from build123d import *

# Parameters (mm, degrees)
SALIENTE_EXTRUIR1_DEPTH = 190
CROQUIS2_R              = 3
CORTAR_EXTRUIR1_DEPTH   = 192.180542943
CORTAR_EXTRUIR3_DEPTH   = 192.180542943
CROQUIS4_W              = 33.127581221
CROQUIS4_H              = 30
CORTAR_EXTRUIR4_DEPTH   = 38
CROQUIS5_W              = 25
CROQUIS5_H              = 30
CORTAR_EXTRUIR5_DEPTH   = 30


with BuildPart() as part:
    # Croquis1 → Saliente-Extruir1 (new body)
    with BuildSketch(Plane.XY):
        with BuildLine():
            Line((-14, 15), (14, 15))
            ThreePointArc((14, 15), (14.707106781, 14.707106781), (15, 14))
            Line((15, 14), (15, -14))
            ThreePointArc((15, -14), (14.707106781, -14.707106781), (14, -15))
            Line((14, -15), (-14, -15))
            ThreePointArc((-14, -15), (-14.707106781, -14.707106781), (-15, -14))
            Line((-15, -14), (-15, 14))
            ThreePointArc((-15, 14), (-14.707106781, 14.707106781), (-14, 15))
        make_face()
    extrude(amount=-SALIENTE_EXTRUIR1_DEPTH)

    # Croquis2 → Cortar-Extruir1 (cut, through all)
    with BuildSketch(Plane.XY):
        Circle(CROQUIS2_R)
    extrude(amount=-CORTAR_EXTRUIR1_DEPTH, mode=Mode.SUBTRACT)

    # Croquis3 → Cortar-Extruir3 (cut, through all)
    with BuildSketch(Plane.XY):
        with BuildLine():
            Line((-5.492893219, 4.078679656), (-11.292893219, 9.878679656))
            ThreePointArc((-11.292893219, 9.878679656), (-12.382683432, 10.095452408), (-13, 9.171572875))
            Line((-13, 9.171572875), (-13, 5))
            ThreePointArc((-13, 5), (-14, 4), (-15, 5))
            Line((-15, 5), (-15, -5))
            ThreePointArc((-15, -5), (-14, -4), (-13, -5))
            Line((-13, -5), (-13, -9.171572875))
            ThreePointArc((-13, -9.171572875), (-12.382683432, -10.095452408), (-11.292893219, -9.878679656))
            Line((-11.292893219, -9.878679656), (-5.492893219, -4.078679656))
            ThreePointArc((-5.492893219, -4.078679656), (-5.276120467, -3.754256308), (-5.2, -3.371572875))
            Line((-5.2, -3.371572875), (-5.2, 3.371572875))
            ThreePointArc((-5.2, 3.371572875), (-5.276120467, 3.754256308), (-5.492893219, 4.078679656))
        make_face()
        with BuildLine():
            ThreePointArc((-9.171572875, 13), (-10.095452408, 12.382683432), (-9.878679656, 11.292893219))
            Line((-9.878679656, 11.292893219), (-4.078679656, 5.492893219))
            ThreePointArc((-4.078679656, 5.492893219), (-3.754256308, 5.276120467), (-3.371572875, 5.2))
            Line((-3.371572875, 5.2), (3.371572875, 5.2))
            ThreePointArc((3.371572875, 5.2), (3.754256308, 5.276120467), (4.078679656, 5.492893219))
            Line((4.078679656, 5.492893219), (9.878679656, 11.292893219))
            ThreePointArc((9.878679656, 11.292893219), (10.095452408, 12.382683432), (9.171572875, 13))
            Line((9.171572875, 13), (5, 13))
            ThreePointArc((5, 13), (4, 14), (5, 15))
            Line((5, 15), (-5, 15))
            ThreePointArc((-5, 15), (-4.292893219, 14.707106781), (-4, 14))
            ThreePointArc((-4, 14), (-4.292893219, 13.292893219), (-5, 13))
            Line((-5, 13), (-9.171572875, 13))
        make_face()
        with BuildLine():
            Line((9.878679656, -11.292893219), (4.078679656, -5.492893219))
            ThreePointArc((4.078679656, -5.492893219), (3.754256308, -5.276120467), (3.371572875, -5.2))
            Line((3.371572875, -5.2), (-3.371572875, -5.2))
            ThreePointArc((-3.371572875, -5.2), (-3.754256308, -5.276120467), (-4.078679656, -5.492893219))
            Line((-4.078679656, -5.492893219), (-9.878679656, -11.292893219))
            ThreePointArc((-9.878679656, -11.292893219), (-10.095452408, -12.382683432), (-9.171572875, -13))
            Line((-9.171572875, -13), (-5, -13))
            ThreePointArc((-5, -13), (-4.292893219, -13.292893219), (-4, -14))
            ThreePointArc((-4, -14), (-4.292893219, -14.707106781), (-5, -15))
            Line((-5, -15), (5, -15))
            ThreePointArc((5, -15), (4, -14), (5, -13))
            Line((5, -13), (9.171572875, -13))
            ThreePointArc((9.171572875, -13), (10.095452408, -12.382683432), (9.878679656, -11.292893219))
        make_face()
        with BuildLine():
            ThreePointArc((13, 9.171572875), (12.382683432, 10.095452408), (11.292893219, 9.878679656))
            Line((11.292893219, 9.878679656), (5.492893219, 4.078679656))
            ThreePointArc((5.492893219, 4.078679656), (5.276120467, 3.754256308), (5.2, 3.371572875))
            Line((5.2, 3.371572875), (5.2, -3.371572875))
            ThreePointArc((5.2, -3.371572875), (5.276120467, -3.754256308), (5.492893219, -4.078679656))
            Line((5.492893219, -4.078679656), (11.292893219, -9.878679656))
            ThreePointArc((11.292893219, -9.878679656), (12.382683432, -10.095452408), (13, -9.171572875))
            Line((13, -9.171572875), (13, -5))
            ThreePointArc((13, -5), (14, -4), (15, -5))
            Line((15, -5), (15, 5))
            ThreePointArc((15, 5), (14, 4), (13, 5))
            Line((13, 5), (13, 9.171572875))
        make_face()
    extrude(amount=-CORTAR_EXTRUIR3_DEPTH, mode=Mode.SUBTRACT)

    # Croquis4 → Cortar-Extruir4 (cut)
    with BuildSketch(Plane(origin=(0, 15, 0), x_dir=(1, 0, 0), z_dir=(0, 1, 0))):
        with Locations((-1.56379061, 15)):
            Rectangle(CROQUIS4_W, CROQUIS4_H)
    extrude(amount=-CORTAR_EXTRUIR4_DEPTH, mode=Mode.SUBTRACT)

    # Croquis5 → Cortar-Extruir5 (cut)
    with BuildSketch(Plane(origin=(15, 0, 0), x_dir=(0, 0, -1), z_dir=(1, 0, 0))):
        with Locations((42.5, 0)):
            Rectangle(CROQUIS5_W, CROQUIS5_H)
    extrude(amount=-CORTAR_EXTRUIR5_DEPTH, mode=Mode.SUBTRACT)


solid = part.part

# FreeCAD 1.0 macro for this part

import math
import FreeCAD as App
import Part
import Sketcher
Q = App.Units.Quantity

doc = App.newDocument("Part")
body = doc.addObject("PartDesign::Body", "Body")

# Sketch on XY plane
sketch1 = body.newObject("Sketcher::SketchObject", "Sketch")
sketch1.AttachmentSupport = (doc.getObject("XY_Plane"), [""])
sketch1.MapMode = "FlatFace"
sketch1.addGeometry(Part.LineSegment(App.Vector(14, 15, 0), App.Vector(-14, 15, 0)), False)
sketch1.addGeometry(Part.ArcOfCircle(Part.Circle(App.Vector(-14, 14, 0), App.Vector(0, 0, 1), 1), math.radians(90), math.radians(180)), False)
sketch1.addGeometry(Part.LineSegment(App.Vector(-15, 14, 0), App.Vector(-15, -14, 0)), False)
sketch1.addGeometry(Part.ArcOfCircle(Part.Circle(App.Vector(-14, -14, 0), App.Vector(0, 0, 1), 1), math.radians(-180), math.radians(-90)), False)
sketch1.addGeometry(Part.LineSegment(App.Vector(-14, -15, 0), App.Vector(14, -15, 0)), False)
sketch1.addGeometry(Part.ArcOfCircle(Part.Circle(App.Vector(14, -14, 0), App.Vector(0, 0, 1), 1), math.radians(-90), math.radians(0)), False)
sketch1.addGeometry(Part.LineSegment(App.Vector(15, -14, 0), App.Vector(15, 14, 0)), False)
sketch1.addGeometry(Part.ArcOfCircle(Part.Circle(App.Vector(14, 14, 0), App.Vector(0, 0, 1), 1), math.radians(0), math.radians(90)), False)
sketch1.addConstraint(Sketcher.Constraint("Tangent", 0, 2, 1, 1))
sketch1.addConstraint(Sketcher.Constraint("Tangent", 1, 2, 2, 1))
sketch1.addConstraint(Sketcher.Constraint("Tangent", 2, 2, 3, 1))
sketch1.addConstraint(Sketcher.Constraint("Tangent", 3, 2, 4, 1))
sketch1.addConstraint(Sketcher.Constraint("Tangent", 4, 2, 5, 1))
sketch1.addConstraint(Sketcher.Constraint("Tangent", 5, 2, 6, 1))
sketch1.addConstraint(Sketcher.Constraint("Tangent", 6, 2, 7, 1))
sketch1.addConstraint(Sketcher.Constraint("Tangent", 7, 2, 0, 1))
sketch1.addConstraint(Sketcher.Constraint("Horizontal", 0))
sketch1.addConstraint(Sketcher.Constraint("Vertical", 2))
sketch1.addConstraint(Sketcher.Constraint("Horizontal", 4))
sketch1.addConstraint(Sketcher.Constraint("Vertical", 6))
sketch1.addConstraint(Sketcher.Constraint("Equal", 1, 3))
sketch1.addConstraint(Sketcher.Constraint("Equal", 3, 5))
sketch1.addConstraint(Sketcher.Constraint("Equal", 5, 7))
sketch1.addConstraint(Sketcher.Constraint("Symmetric", 1, 3, 5, 3, -1, 1))
sketch1.addConstraint(Sketcher.Constraint("Equal", 4, 2))
sketch1.addConstraint(Sketcher.Constraint("Radius", 1, Q("1 mm")))
sketch1.addConstraint(Sketcher.Constraint("DistanceX", 0, 2, 0, 1, Q("28 mm")))
pad1 = body.newObject("PartDesign::Pad", "Pad")
pad1.Profile = sketch1
pad1.Length = 190
pad1.Reversed = True

# Sketch on XY plane
sketch2 = body.newObject("Sketcher::SketchObject", "Sketch001")
sketch2.AttachmentSupport = (doc.getObject("XY_Plane"), [""])
sketch2.MapMode = "FlatFace"
sketch2.addGeometry(Part.Circle(App.Vector(0, 0, 0), App.Vector(0, 0, 1), 3), False)
sketch2.addConstraint(Sketcher.Constraint("Coincident", 0, 3, -1, 1))
sketch2.addConstraint(Sketcher.Constraint("Diameter", 0, Q("6 mm")))
pocket1 = body.newObject("PartDesign::Pocket", "Pocket")
pocket1.Profile = sketch2
pocket1.Type = "ThroughAll"

# Sketch on XY plane
sketch3 = body.newObject("Sketcher::SketchObject", "Sketch002")
sketch3.AttachmentSupport = (doc.getObject("XY_Plane"), [""])
sketch3.MapMode = "FlatFace"
sketch3.addGeometry(Part.LineSegment(App.Vector(-5.5, 4.1, 0), App.Vector(-11.3, 9.9, 0)), False)
sketch3.addGeometry(Part.ArcOfCircle(Part.Circle(App.Vector(-12, 9.2, 0), App.Vector(0, 0, 1), 1), math.radians(45), math.radians(180)), False)
sketch3.addGeometry(Part.LineSegment(App.Vector(-13, 9.2, 0), App.Vector(-13, 5, 0)), False)
sketch3.addGeometry(Part.ArcOfCircle(Part.Circle(App.Vector(-14, 5, 0), App.Vector(0, 0, 1), 1), math.radians(180), math.radians(360)), False)
sketch3.addGeometry(Part.LineSegment(App.Vector(-15, 5, 0), App.Vector(-15, -5, 0)), False)
sketch3.addGeometry(Part.ArcOfCircle(Part.Circle(App.Vector(-14, -5, 0), App.Vector(0, 0, 1), 1), math.radians(0), math.radians(180)), False)
sketch3.addGeometry(Part.LineSegment(App.Vector(-13, -5, 0), App.Vector(-13, -9.2, 0)), False)
sketch3.addGeometry(Part.ArcOfCircle(Part.Circle(App.Vector(-12, -9.2, 0), App.Vector(0, 0, 1), 1), math.radians(180), math.radians(315)), False)
sketch3.addGeometry(Part.LineSegment(App.Vector(-11.3, -9.9, 0), App.Vector(-5.5, -4.1, 0)), False)
sketch3.addGeometry(Part.ArcOfCircle(Part.Circle(App.Vector(-6.2, -3.4, 0), App.Vector(0, 0, 1), 1), math.radians(-45), math.radians(0)), False)
sketch3.addGeometry(Part.LineSegment(App.Vector(-5.2, -3.4, 0), App.Vector(-5.2, 3.4, 0)), False)
sketch3.addGeometry(Part.ArcOfCircle(Part.Circle(App.Vector(-6.2, 3.4, 0), App.Vector(0, 0, 1), 1), math.radians(0), math.radians(45)), False)
sketch3.addGeometry(Part.ArcOfCircle(Part.Circle(App.Vector(-9.2, 12, 0), App.Vector(0, 0, 1), 1), math.radians(90), math.radians(225)), False)
sketch3.addGeometry(Part.LineSegment(App.Vector(-9.9, 11.3, 0), App.Vector(-4.1, 5.5, 0)), False)
sketch3.addGeometry(Part.ArcOfCircle(Part.Circle(App.Vector(-3.4, 6.2, 0), App.Vector(0, 0, 1), 1), math.radians(-135), math.radians(-90)), False)
sketch3.addGeometry(Part.LineSegment(App.Vector(-3.4, 5.2, 0), App.Vector(3.4, 5.2, 0)), False)
sketch3.addGeometry(Part.ArcOfCircle(Part.Circle(App.Vector(3.4, 6.2, 0), App.Vector(0, 0, 1), 1), math.radians(-90), math.radians(-45)), False)
sketch3.addGeometry(Part.LineSegment(App.Vector(4.1, 5.5, 0), App.Vector(9.9, 11.3, 0)), False)
sketch3.addGeometry(Part.ArcOfCircle(Part.Circle(App.Vector(9.2, 12, 0), App.Vector(0, 0, 1), 1), math.radians(-45), math.radians(90)), False)
sketch3.addGeometry(Part.LineSegment(App.Vector(9.2, 13, 0), App.Vector(5, 13, 0)), False)
sketch3.addGeometry(Part.ArcOfCircle(Part.Circle(App.Vector(5, 14, 0), App.Vector(0, 0, 1), 1), math.radians(90), math.radians(270)), False)
sketch3.addGeometry(Part.LineSegment(App.Vector(5, 15, 0), App.Vector(-5, 15, 0)), False)
sketch3.addGeometry(Part.ArcOfCircle(Part.Circle(App.Vector(-5, 14, 0), App.Vector(0, 0, 1), 1), math.radians(0), math.radians(90)), False)
sketch3.addGeometry(Part.ArcOfCircle(Part.Circle(App.Vector(-5, 14, 0), App.Vector(0, 0, 1), 1), math.radians(-90), math.radians(0)), False)
sketch3.addGeometry(Part.LineSegment(App.Vector(-5, 13, 0), App.Vector(-9.2, 13, 0)), False)
sketch3.addGeometry(Part.LineSegment(App.Vector(9.9, -11.3, 0), App.Vector(4.1, -5.5, 0)), False)
sketch3.addGeometry(Part.ArcOfCircle(Part.Circle(App.Vector(3.4, -6.2, 0), App.Vector(0, 0, 1), 1), math.radians(45), math.radians(90)), False)
sketch3.addGeometry(Part.LineSegment(App.Vector(3.4, -5.2, 0), App.Vector(-3.4, -5.2, 0)), False)
sketch3.addGeometry(Part.ArcOfCircle(Part.Circle(App.Vector(-3.4, -6.2, 0), App.Vector(0, 0, 1), 1), math.radians(90), math.radians(135)), False)
sketch3.addGeometry(Part.LineSegment(App.Vector(-4.1, -5.5, 0), App.Vector(-9.9, -11.3, 0)), False)
sketch3.addGeometry(Part.ArcOfCircle(Part.Circle(App.Vector(-9.2, -12, 0), App.Vector(0, 0, 1), 1), math.radians(135), math.radians(270)), False)
sketch3.addGeometry(Part.LineSegment(App.Vector(-9.2, -13, 0), App.Vector(-5, -13, 0)), False)
sketch3.addGeometry(Part.ArcOfCircle(Part.Circle(App.Vector(-5, -14, 0), App.Vector(0, 0, 1), 1), math.radians(0), math.radians(90)), False)
sketch3.addGeometry(Part.ArcOfCircle(Part.Circle(App.Vector(-5, -14, 0), App.Vector(0, 0, 1), 1), math.radians(-90), math.radians(0)), False)
sketch3.addGeometry(Part.LineSegment(App.Vector(-5, -15, 0), App.Vector(5, -15, 0)), False)
sketch3.addGeometry(Part.ArcOfCircle(Part.Circle(App.Vector(5, -14, 0), App.Vector(0, 0, 1), 1), math.radians(90), math.radians(270)), False)
sketch3.addGeometry(Part.LineSegment(App.Vector(5, -13, 0), App.Vector(9.2, -13, 0)), False)
sketch3.addGeometry(Part.ArcOfCircle(Part.Circle(App.Vector(9.2, -12, 0), App.Vector(0, 0, 1), 1), math.radians(-90), math.radians(45)), False)
sketch3.addGeometry(Part.ArcOfCircle(Part.Circle(App.Vector(12, 9.2, 0), App.Vector(0, 0, 1), 1), math.radians(0), math.radians(135)), False)
sketch3.addGeometry(Part.LineSegment(App.Vector(11.3, 9.9, 0), App.Vector(5.5, 4.1, 0)), False)
sketch3.addGeometry(Part.ArcOfCircle(Part.Circle(App.Vector(6.2, 3.4, 0), App.Vector(0, 0, 1), 1), math.radians(135), math.radians(180)), False)
sketch3.addGeometry(Part.LineSegment(App.Vector(5.2, 3.4, 0), App.Vector(5.2, -3.4, 0)), False)
sketch3.addGeometry(Part.ArcOfCircle(Part.Circle(App.Vector(6.2, -3.4, 0), App.Vector(0, 0, 1), 1), math.radians(180), math.radians(225)), False)
sketch3.addGeometry(Part.LineSegment(App.Vector(5.5, -4.1, 0), App.Vector(11.3, -9.9, 0)), False)
sketch3.addGeometry(Part.ArcOfCircle(Part.Circle(App.Vector(12, -9.2, 0), App.Vector(0, 0, 1), 1), math.radians(-135), math.radians(0)), False)
sketch3.addGeometry(Part.LineSegment(App.Vector(13, -9.2, 0), App.Vector(13, -5, 0)), False)
sketch3.addGeometry(Part.ArcOfCircle(Part.Circle(App.Vector(14, -5, 0), App.Vector(0, 0, 1), 1), math.radians(0), math.radians(180)), False)
sketch3.addGeometry(Part.LineSegment(App.Vector(15, -5, 0), App.Vector(15, 5, 0)), False)
sketch3.addGeometry(Part.ArcOfCircle(Part.Circle(App.Vector(14, 5, 0), App.Vector(0, 0, 1), 1), math.radians(180), math.radians(360)), False)
sketch3.addGeometry(Part.LineSegment(App.Vector(13, 5, 0), App.Vector(13, 9.2, 0)), False)
sketch3.addConstraint(Sketcher.Constraint("Tangent", 0, 2, 1, 1))
sketch3.addConstraint(Sketcher.Constraint("Tangent", 1, 2, 2, 1))
sketch3.addConstraint(Sketcher.Constraint("Tangent", 2, 2, 3, 2))
sketch3.addConstraint(Sketcher.Constraint("Tangent", 3, 1, 4, 1))
sketch3.addConstraint(Sketcher.Constraint("Tangent", 4, 2, 5, 2))
sketch3.addConstraint(Sketcher.Constraint("Tangent", 5, 1, 6, 1))
sketch3.addConstraint(Sketcher.Constraint("Tangent", 6, 2, 7, 1))
sketch3.addConstraint(Sketcher.Constraint("Tangent", 7, 2, 8, 1))
sketch3.addConstraint(Sketcher.Constraint("Tangent", 8, 2, 9, 1))
sketch3.addConstraint(Sketcher.Constraint("Tangent", 9, 2, 10, 1))
sketch3.addConstraint(Sketcher.Constraint("Tangent", 10, 2, 11, 1))
sketch3.addConstraint(Sketcher.Constraint("Tangent", 11, 2, 0, 1))
sketch3.addConstraint(Sketcher.Constraint("Tangent", 12, 2, 13, 1))
sketch3.addConstraint(Sketcher.Constraint("Tangent", 13, 2, 14, 1))
sketch3.addConstraint(Sketcher.Constraint("Tangent", 14, 2, 15, 1))
sketch3.addConstraint(Sketcher.Constraint("Tangent", 15, 2, 16, 1))
sketch3.addConstraint(Sketcher.Constraint("Tangent", 16, 2, 17, 1))
sketch3.addConstraint(Sketcher.Constraint("Tangent", 17, 2, 18, 1))
sketch3.addConstraint(Sketcher.Constraint("Tangent", 18, 2, 19, 1))
sketch3.addConstraint(Sketcher.Constraint("Tangent", 19, 2, 20, 2))
sketch3.addConstraint(Sketcher.Constraint("Tangent", 20, 1, 21, 1))
sketch3.addConstraint(Sketcher.Constraint("Tangent", 21, 2, 22, 2))
sketch3.addConstraint(Sketcher.Constraint("Tangent", 22, 1, 23, 2))
sketch3.addConstraint(Sketcher.Constraint("Tangent", 23, 1, 24, 1))
sketch3.addConstraint(Sketcher.Constraint("Tangent", 24, 2, 12, 1))
sketch3.addConstraint(Sketcher.Constraint("Tangent", 25, 2, 26, 1))
sketch3.addConstraint(Sketcher.Constraint("Tangent", 26, 2, 27, 1))
sketch3.addConstraint(Sketcher.Constraint("Tangent", 27, 2, 28, 1))
sketch3.addConstraint(Sketcher.Constraint("Tangent", 28, 2, 29, 1))
sketch3.addConstraint(Sketcher.Constraint("Tangent", 29, 2, 30, 1))
sketch3.addConstraint(Sketcher.Constraint("Tangent", 30, 2, 31, 1))
sketch3.addConstraint(Sketcher.Constraint("Tangent", 31, 2, 32, 2))
sketch3.addConstraint(Sketcher.Constraint("Tangent", 32, 1, 33, 2))
sketch3.addConstraint(Sketcher.Constraint("Tangent", 33, 1, 34, 1))
sketch3.addConstraint(Sketcher.Constraint("Tangent", 34, 2, 35, 2))
sketch3.addConstraint(Sketcher.Constraint("Tangent", 35, 1, 36, 1))
sketch3.addConstraint(Sketcher.Constraint("Tangent", 36, 2, 37, 1))
sketch3.addConstraint(Sketcher.Constraint("Tangent", 37, 2, 25, 1))
sketch3.addConstraint(Sketcher.Constraint("Tangent", 38, 2, 39, 1))
sketch3.addConstraint(Sketcher.Constraint("Tangent", 39, 2, 40, 1))
sketch3.addConstraint(Sketcher.Constraint("Tangent", 40, 2, 41, 1))
sketch3.addConstraint(Sketcher.Constraint("Tangent", 41, 2, 42, 1))
sketch3.addConstraint(Sketcher.Constraint("Tangent", 42, 2, 43, 1))
sketch3.addConstraint(Sketcher.Constraint("Tangent", 43, 2, 44, 1))
sketch3.addConstraint(Sketcher.Constraint("Tangent", 44, 2, 45, 1))
sketch3.addConstraint(Sketcher.Constraint("Tangent", 45, 2, 46, 2))
sketch3.addConstraint(Sketcher.Constraint("Tangent", 46, 1, 47, 1))
sketch3.addConstraint(Sketcher.Constraint("Tangent", 47, 2, 48, 2))
sketch3.addConstraint(Sketcher.Constraint("Tangent", 48, 1, 49, 1))
sketch3.addConstraint(Sketcher.Constraint("Tangent", 49, 2, 38, 1))
sketch3.addConstraint(Sketcher.Constraint("Vertical", 2))
sketch3.addConstraint(Sketcher.Constraint("Vertical", 4))
sketch3.addConstraint(Sketcher.Constraint("Vertical", 6))
sketch3.addConstraint(Sketcher.Constraint("Vertical", 10))
sketch3.addConstraint(Sketcher.Constraint("Horizontal", 15))
sketch3.addConstraint(Sketcher.Constraint("Horizontal", 19))
sketch3.addConstraint(Sketcher.Constraint("Horizontal", 21))
sketch3.addConstraint(Sketcher.Constraint("Horizontal", 24))
sketch3.addConstraint(Sketcher.Constraint("Horizontal", 27))
sketch3.addConstraint(Sketcher.Constraint("Horizontal", 31))
sketch3.addConstraint(Sketcher.Constraint("Horizontal", 34))
sketch3.addConstraint(Sketcher.Constraint("Horizontal", 36))
sketch3.addConstraint(Sketcher.Constraint("Vertical", 41))
sketch3.addConstraint(Sketcher.Constraint("Vertical", 45))
sketch3.addConstraint(Sketcher.Constraint("Vertical", 47))
sketch3.addConstraint(Sketcher.Constraint("Vertical", 49))
sketch3.addConstraint(Sketcher.Constraint("Equal", 1, 3))
sketch3.addConstraint(Sketcher.Constraint("Equal", 3, 5))
sketch3.addConstraint(Sketcher.Constraint("Equal", 5, 7))
sketch3.addConstraint(Sketcher.Constraint("Equal", 7, 9))
sketch3.addConstraint(Sketcher.Constraint("Equal", 9, 11))
sketch3.addConstraint(Sketcher.Constraint("Equal", 11, 12))
sketch3.addConstraint(Sketcher.Constraint("Equal", 12, 14))
sketch3.addConstraint(Sketcher.Constraint("Equal", 14, 16))
sketch3.addConstraint(Sketcher.Constraint("Equal", 16, 18))
sketch3.addConstraint(Sketcher.Constraint("Equal", 18, 20))
sketch3.addConstraint(Sketcher.Constraint("Equal", 20, 22))
sketch3.addConstraint(Sketcher.Constraint("Equal", 22, 23))
sketch3.addConstraint(Sketcher.Constraint("Equal", 23, 26))
sketch3.addConstraint(Sketcher.Constraint("Equal", 26, 28))
sketch3.addConstraint(Sketcher.Constraint("Equal", 28, 30))
sketch3.addConstraint(Sketcher.Constraint("Equal", 30, 32))
sketch3.addConstraint(Sketcher.Constraint("Equal", 32, 33))
sketch3.addConstraint(Sketcher.Constraint("Equal", 33, 35))
sketch3.addConstraint(Sketcher.Constraint("Equal", 35, 37))
sketch3.addConstraint(Sketcher.Constraint("Equal", 37, 38))
sketch3.addConstraint(Sketcher.Constraint("Equal", 38, 40))
sketch3.addConstraint(Sketcher.Constraint("Equal", 40, 42))
sketch3.addConstraint(Sketcher.Constraint("Equal", 42, 44))
sketch3.addConstraint(Sketcher.Constraint("Equal", 44, 46))
sketch3.addConstraint(Sketcher.Constraint("Equal", 46, 48))
sketch3.addConstraint(Sketcher.Constraint("Symmetric", 14, 3, 26, 3, -1, 1))
sketch3.addConstraint(Sketcher.Constraint("Symmetric", 18, 3, 30, 3, -1, 1))
sketch3.addConstraint(Sketcher.Constraint("Symmetric", 7, 3, 38, 3, -1, 1))
sketch3.addConstraint(Sketcher.Constraint("Symmetric", 9, 3, 40, 3, -1, 1))
sketch3.addConstraint(Sketcher.Constraint("Symmetric", 11, 2, 42, 2, -1, 1))
sketch3.addConstraint(Sketcher.Constraint("Symmetric", 13, 2, 16, 2, -2))
sketch3.addConstraint(Sketcher.Constraint("Symmetric", 25, 2, 28, 2, -2))
sketch3.addConstraint(Sketcher.Constraint("Symmetric", 0, 2, 38, 2, -2))
sketch3.addConstraint(Sketcher.Constraint("Symmetric", 22, 1, 32, 1, -1))
sketch3.addConstraint(Sketcher.Constraint("Perpendicular", 0, 8))
sketch3.addConstraint(Sketcher.Constraint("Perpendicular", 8, 13))
sketch3.addConstraint(Sketcher.Constraint("Horizontal", 5, 3, 46, 3))
sketch3.addConstraint(Sketcher.Constraint("Horizontal", 3, 3, 48, 3))
sketch3.addConstraint(Sketcher.Constraint("Horizontal", 23, 3, 22, 1))
sketch3.addConstraint(Sketcher.Constraint("Vertical", 20, 3, 35, 3))
sketch3.addConstraint(Sketcher.Constraint("Equal", 19, 24))
sketch3.addConstraint(Sketcher.Constraint("Equal", 36, 2))
sketch3.addConstraint(Sketcher.Constraint("Equal", 34, 4))
sketch3.addConstraint(Sketcher.Constraint("Equal", 2, 6))
sketch3.addConstraint(Sketcher.Constraint("Equal", 27, 10))
sketch3.addConstraint(Sketcher.Constraint("Radius", 1, Q("1 mm")))
sketch3.addConstraint(Sketcher.Constraint("DistanceX", 21, 2, 21, 1, Q("10 mm")))
sketch3.addConstraint(Sketcher.Constraint("DistanceX", 1, 3, -1, 1, Q("12 mm")))
sketch3.addConstraint(Sketcher.Constraint("DistanceY", -1, 1, 12, 3, Q("12 mm")))
sketch3.addConstraint(Sketcher.Constraint("DistanceX", 9, 3, -1, 1, Q("6.2 mm")))
sketch3.addConstraint(Sketcher.Constraint("DistanceX", 15, 1, 15, 2, Q("6.743146 mm")))
pocket2 = body.newObject("PartDesign::Pocket", "Pocket001")
pocket2.Profile = sketch3
pocket2.Type = "ThroughAll"

# Sketch on XZ plane
sketch4 = body.newObject("Sketcher::SketchObject", "Sketch003")
sketch4.AttachmentSupport = (doc.getObject("XZ_Plane"), [""])
sketch4.MapMode = "FlatFace"
sketch4.AttachmentOffset = App.Placement(App.Vector(0, 0, -15), App.Rotation())
sketch4.addGeometry(Part.LineSegment(App.Vector(-18, -30, 0), App.Vector(-18, 0, 0)), False)
sketch4.addGeometry(Part.LineSegment(App.Vector(-18, 0, 0), App.Vector(15, 0, 0)), False)
sketch4.addGeometry(Part.LineSegment(App.Vector(15, 0, 0), App.Vector(15, -30, 0)), False)
sketch4.addGeometry(Part.LineSegment(App.Vector(15, -30, 0), App.Vector(-18, -30, 0)), False)
sketch4.addConstraint(Sketcher.Constraint("Coincident", 0, 2, 1, 1))
sketch4.addConstraint(Sketcher.Constraint("Coincident", 1, 2, 2, 1))
sketch4.addConstraint(Sketcher.Constraint("Coincident", 2, 2, 3, 1))
sketch4.addConstraint(Sketcher.Constraint("Coincident", 3, 2, 0, 1))
sketch4.addConstraint(Sketcher.Constraint("Vertical", 0))
sketch4.addConstraint(Sketcher.Constraint("Horizontal", 1))
sketch4.addConstraint(Sketcher.Constraint("Vertical", 2))
sketch4.addConstraint(Sketcher.Constraint("Horizontal", 3))
sketch4.addConstraint(Sketcher.Constraint("PointOnObject", 0, 2, -1))
sketch4.addConstraint(Sketcher.Constraint("DistanceY", 0, 1, 0, 2, Q("30 mm")))
sketch4.addConstraint(Sketcher.Constraint("DistanceX", -1, 1, 1, 2, Q("15 mm")))
sketch4.addConstraint(Sketcher.Constraint("DistanceX", 1, 1, 1, 2, Q("33.127581 mm")))
pocket3 = body.newObject("PartDesign::Pocket", "Pocket002")
pocket3.Profile = sketch4
pocket3.Length = 38
pocket3.Reversed = True

# Sketch on YZ plane
sketch5 = body.newObject("Sketcher::SketchObject", "Sketch004")
sketch5.AttachmentSupport = (doc.getObject("YZ_Plane"), [""])
sketch5.MapMode = "FlatFace"
sketch5.AttachmentOffset = App.Placement(App.Vector(0, 0, 15), App.Rotation())
sketch5.addGeometry(Part.LineSegment(App.Vector(15, -30, 0), App.Vector(-15, -30, 0)), False)
sketch5.addGeometry(Part.LineSegment(App.Vector(-15, -30, 0), App.Vector(-15, -55, 0)), False)
sketch5.addGeometry(Part.LineSegment(App.Vector(-15, -55, 0), App.Vector(15, -55, 0)), False)
sketch5.addGeometry(Part.LineSegment(App.Vector(15, -55, 0), App.Vector(15, -30, 0)), False)
sketch5.addConstraint(Sketcher.Constraint("Coincident", 0, 2, 1, 1))
sketch5.addConstraint(Sketcher.Constraint("Coincident", 1, 2, 2, 1))
sketch5.addConstraint(Sketcher.Constraint("Coincident", 2, 2, 3, 1))
sketch5.addConstraint(Sketcher.Constraint("Coincident", 3, 2, 0, 1))
sketch5.addConstraint(Sketcher.Constraint("Horizontal", 0))
sketch5.addConstraint(Sketcher.Constraint("Vertical", 1))
sketch5.addConstraint(Sketcher.Constraint("Horizontal", 2))
sketch5.addConstraint(Sketcher.Constraint("Vertical", 3))
sketch5.addConstraint(Sketcher.Constraint("DistanceX", 0, 2, 0, 1, Q("30 mm")))
sketch5.addConstraint(Sketcher.Constraint("DistanceY", 1, 2, 1, 1, Q("25 mm")))
sketch5.addConstraint(Sketcher.Constraint("DistanceX", 0, 2, -1, 1, Q("15 mm")))
sketch5.addConstraint(Sketcher.Constraint("DistanceY", 0, 2, -1, 1, Q("30 mm")))
pocket4 = body.newObject("PartDesign::Pocket", "Pocket003")
pocket4.Profile = sketch5
pocket4.Length = 30

doc.recompute()
